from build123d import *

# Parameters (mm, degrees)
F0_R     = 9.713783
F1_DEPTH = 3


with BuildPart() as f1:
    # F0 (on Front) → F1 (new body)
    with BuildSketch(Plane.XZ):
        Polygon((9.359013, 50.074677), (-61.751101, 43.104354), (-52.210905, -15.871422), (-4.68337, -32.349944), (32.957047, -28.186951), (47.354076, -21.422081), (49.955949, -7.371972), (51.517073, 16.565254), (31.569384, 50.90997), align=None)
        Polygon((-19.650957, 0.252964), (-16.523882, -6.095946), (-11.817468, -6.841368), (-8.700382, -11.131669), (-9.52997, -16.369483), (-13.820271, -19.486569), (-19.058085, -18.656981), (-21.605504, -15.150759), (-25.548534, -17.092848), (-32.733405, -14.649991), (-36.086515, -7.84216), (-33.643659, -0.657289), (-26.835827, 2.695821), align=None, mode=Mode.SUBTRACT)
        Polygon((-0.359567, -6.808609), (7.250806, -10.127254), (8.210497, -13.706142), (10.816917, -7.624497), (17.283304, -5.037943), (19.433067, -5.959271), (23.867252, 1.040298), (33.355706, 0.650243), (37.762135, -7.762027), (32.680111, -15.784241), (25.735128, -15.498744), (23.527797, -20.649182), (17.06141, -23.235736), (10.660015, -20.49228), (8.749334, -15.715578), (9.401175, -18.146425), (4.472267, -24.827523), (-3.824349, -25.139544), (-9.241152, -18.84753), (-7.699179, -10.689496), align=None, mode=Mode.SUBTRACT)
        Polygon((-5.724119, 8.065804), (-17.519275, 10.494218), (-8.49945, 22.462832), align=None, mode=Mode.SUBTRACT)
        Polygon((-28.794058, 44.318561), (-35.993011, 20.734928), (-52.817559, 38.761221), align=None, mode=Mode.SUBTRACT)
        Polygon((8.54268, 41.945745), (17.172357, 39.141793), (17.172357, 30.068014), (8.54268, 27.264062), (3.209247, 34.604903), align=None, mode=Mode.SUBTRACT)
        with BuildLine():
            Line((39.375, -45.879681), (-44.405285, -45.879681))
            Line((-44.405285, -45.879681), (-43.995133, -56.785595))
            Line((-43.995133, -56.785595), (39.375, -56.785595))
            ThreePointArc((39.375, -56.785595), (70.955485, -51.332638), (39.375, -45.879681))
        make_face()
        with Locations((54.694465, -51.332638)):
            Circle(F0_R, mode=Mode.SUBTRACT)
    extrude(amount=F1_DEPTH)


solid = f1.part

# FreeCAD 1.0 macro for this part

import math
import FreeCAD as App
import Part
import Sketcher
Q = App.Units.Quantity


def add_polygon(sketch, points):
    """Adds a closed chain of lines whose ends are joined by coincident constraints."""
    first, n = sketch.GeometryCount, len(points)
    for a, b in zip(points, points[1:] + points[:1]):
        sketch.addGeometry(Part.LineSegment(App.Vector(*a, 0), App.Vector(*b, 0)), False)
    for i in range(n):
        sketch.addConstraint(Sketcher.Constraint("Coincident", first + i, 2, first + (i + 1) % n, 1))

doc = App.newDocument("Part")
body = doc.addObject("PartDesign::Body", "Body")
body.AllowCompound = True

# Sketch on XZ plane
sketch1 = doc.addObject("Sketcher::SketchObject", "Sketch")
body.addObject(sketch1)
sketch1.AttachmentSupport = (doc.XZ_Plane, [""])
sketch1.MapMode = "FlatFace"
add_polygon(sketch1, [(9.359013, 50.074677), (-61.751101, 43.104354), (-52.210905, -15.871422), (-4.68337, -32.349944), (32.957047, -28.186951), (47.354076, -21.422081), (49.955949, -7.371972), (51.517073, 16.565254), (31.569384, 50.90997)])  # lines 0-8
add_polygon(sketch1, [(-26.835827, 2.695821), (-19.650957, 0.252964), (-16.523882, -6.095946), (-11.817468, -6.841368), (-8.700382, -11.131669), (-9.52997, -16.369483), (-13.820271, -19.486569), (-19.058085, -18.656981), (-21.605504, -15.150759), (-25.548534, -17.092848), (-32.733405, -14.649991), (-36.086515, -7.84216), (-33.643659, -0.657289)])  # lines 9-21
add_polygon(sketch1, [(-7.699179, -10.689496), (-0.359567, -6.808609), (7.250806, -10.127254), (8.210497, -13.706142), (10.816917, -7.624497), (17.283304, -5.037943), (19.433067, -5.959271), (23.867252, 1.040298), (33.355706, 0.650243), (37.762135, -7.762027), (32.680111, -15.784241), (25.735128, -15.498744), (23.527797, -20.649182), (17.06141, -23.235736), (10.660015, -20.49228), (8.749334, -15.715578), (9.401175, -18.146425), (4.472267, -24.827523), (-3.824349, -25.139544), (-9.241152, -18.84753)])  # lines 22-41
add_polygon(sketch1, [(-8.49945, 22.462832), (-5.724119, 8.065804), (-17.519275, 10.494218)])  # lines 42-44
add_polygon(sketch1, [(-52.817559, 38.761221), (-28.794058, 44.318561), (-35.993011, 20.734928)])  # lines 45-47
add_polygon(sketch1, [(3.209247, 34.604903), (8.54268, 41.945745), (17.172357, 39.141793), (17.172357, 30.068014), (8.54268, 27.264062)])  # lines 48-52
sketch1.addGeometry(Part.LineSegment(App.Vector(39.375, -45.879681, 0), App.Vector(-44.405285, -45.879681, 0)), False)  # 53
sketch1.addGeometry(Part.LineSegment(App.Vector(-44.405285, -45.879681, 0), App.Vector(-43.995133, -56.785595, 0)), False)  # 54
sketch1.addGeometry(Part.LineSegment(App.Vector(-43.995133, -56.785595, 0), App.Vector(39.375, -56.785595, 0)), False)  # 55
sketch1.addGeometry(Part.ArcOfCircle(Part.Circle(App.Vector(54.694465, -51.332638, 0), App.Vector(0, 0, 1), 16.26102), math.radians(-160.406835), math.radians(160.406835)), False)  # 56
sketch1.addGeometry(Part.Circle(App.Vector(54.694465, -51.332638, 0), App.Vector(0, 0, 1), 9.713783), False)  # 57
sketch1.addConstraint([
    Sketcher.Constraint("Coincident", 53, 2, 54, 1),
    Sketcher.Constraint("Coincident", 54, 2, 55, 1),
    Sketcher.Constraint("Coincident", 55, 2, 56, 1),
    Sketcher.Constraint("Coincident", 56, 2, 53, 1),
    Sketcher.Constraint("Vertical", 50),
    Sketcher.Constraint("Horizontal", 53),
    Sketcher.Constraint("Horizontal", 55),
    Sketcher.Constraint("Coincident", 57, 3, 56, 3),
    Sketcher.Constraint("Radius", 56, Q("16.26102 mm")),
    Sketcher.Constraint("Diameter", 57, Q("19.427566 mm")),
    Sketcher.Constraint("DistanceX", -1, 1, 55, 2, Q("39.375 mm")),
    Sketcher.Constraint("DistanceX", -1, 1, 56, 2, Q("39.375 mm")),
    Sketcher.Constraint("DistanceY", 2, 2, 10, 2, Q("26.253998 mm")),
    Sketcher.Constraint("Distance", 9, Q("7.588801 mm")),
    Sketcher.Constraint("Distance", 19, Q("7.588802 mm")),
    Sketcher.Constraint("DistanceY", 50, 2, 50, 1, Q("9.073779 mm")),
    Sketcher.Constraint("DistanceX", 0, 2, -1, 1, Q("61.751101 mm")),
    Sketcher.Constraint("DistanceX", 3, 2, 5, 2, Q("16.998902 mm")),
    Sketcher.Constraint("DistanceY", 12, 2, 11, 2, Q("4.290301 mm")),
    Sketcher.Constraint("DistanceX", 10, 2, 12, 2, Q("7.8235 mm")),
    Sketcher.Constraint("DistanceX", 13, 2, 2, 2, Q("4.8466 mm")),
    Sketcher.Constraint("DistanceX", 14, 2, 13, 2, Q("4.290301 mm")),
    Sketcher.Constraint("DistanceY", 14, 2, 12, 2, Q("8.3549 mm")),
    Sketcher.Constraint("DistanceX", 18, 2, 16, 2, Q("11.127901 mm")),
    Sketcher.Constraint("DistanceX", 1, 2, 18, 2, Q("19.4775 mm")),
    Sketcher.Constraint("DistanceY", 16, 2, 19, 2, Q("7.308599 mm")),
    Sketcher.Constraint("DistanceX", 11, 2, 22, 2, Q("11.457901 mm")),
    Sketcher.Constraint("DistanceX", 12, 2, 25, 2, Q("19.517299 mm")),
    Sketcher.Constraint("DistanceY", 24, 2, 26, 2, Q("8.668199 mm")),
    Sketcher.Constraint("DistanceX", 26, 2, 29, 2, Q("16.072402 mm")),
    Sketcher.Constraint("DistanceY", 32, 2, 26, 2, Q("10.460801 mm")),
    Sketcher.Constraint("DistanceY", 33, 2, 35, 2, Q("0.156902 mm")),
    Sketcher.Constraint("DistanceY", 2, 2, 39, 2, Q("7.2104 mm")),
    Sketcher.Constraint("DistanceY", 41, 2, 42, 2, Q("18.7553 mm")),
    Sketcher.Constraint("DistanceY", 11, 2, 44, 2, Q("29.3042 mm")),
    Sketcher.Constraint("DistanceX", 47, 2, 45, 2, Q("24.023501 mm")),
    Sketcher.Constraint("DistanceX", 47, 2, 20, 2, Q("19.1739 mm")),
    Sketcher.Constraint("DistanceY", 21, 2, 47, 2, Q("36.0654 mm")),
    Sketcher.Constraint("DistanceX", 42, 2, 48, 2, Q("14.266799 mm")),
    Sketcher.Constraint("DistanceX", 53, 2, 15, 2, Q("25.3472 mm")),
    Sketcher.Constraint("DistanceY", 53, 2, 15, 2, Q("27.2227 mm")),
    Sketcher.Constraint("DistanceX", 54, 2, 17, 2, Q("18.446599 mm")),
    Sketcher.Constraint("DistanceY", 56, 2, 4, 2, Q("24.4576 mm")),
    Sketcher.Constraint("Distance", 0, Q("71.450918 mm")),
    Sketcher.Constraint("Distance", 3, Q("37.869929 mm")),
    Sketcher.Constraint("Distance", 6, Q("23.988078 mm")),
    Sketcher.Constraint("Distance", 11, Q("4.76508 mm")),
    Sketcher.Constraint("Distance", 16, Q("4.333929 mm")),
    Sketcher.Constraint("Distance", 17, Q("4.395361 mm")),
    Sketcher.Constraint("Distance", 22, Q("8.302481 mm")),
    Sketcher.Constraint("Distance", 23, Q("8.30248 mm")),
    Sketcher.Constraint("Distance", 26, Q("6.964512 mm")),
    Sketcher.Constraint("Distance", 28, Q("8.285889 mm")),
    Sketcher.Constraint("Distance", 32, Q("6.950849 mm")),
    Sketcher.Constraint("Distance", 33, Q("5.60351 mm")),
    Sketcher.Constraint("Distance", 34, Q("6.964512 mm")),
    Sketcher.Constraint("Distance", 35, Q("6.964511 mm")),
    Sketcher.Constraint("Distance", 38, Q("8.302482 mm")),
    Sketcher.Constraint("Distance", 39, Q("8.302481 mm")),
    Sketcher.Constraint("Distance", 40, Q("8.302481 mm")),
    Sketcher.Constraint("Distance", 41, Q("8.302482 mm")),
    Sketcher.Constraint("Distance", 42, Q("14.66209 mm")),
    Sketcher.Constraint("Distance", 48, Q("9.073779 mm")),
    Sketcher.Constraint("Distance", 49, Q("9.073779 mm")),
    Sketcher.Constraint("Distance", 51, Q("9.073779 mm")),
    Sketcher.Constraint("Distance", 52, Q("9.073778 mm")),
    Sketcher.Constraint("DistanceX", 53, 2, 53, 1, Q("83.780285 mm")),
    Sketcher.Constraint("DistanceX", 55, 1, 55, 2, Q("83.370133 mm")),
    Sketcher.Constraint("DistanceY", 56, 3, -1, 1, Q("51.332638 mm")),
    Sketcher.Constraint("DistanceX", 2, 2, -1, 1, Q("4.68337 mm")),
    Sketcher.Constraint("DistanceY", 3, 2, -1, 1, Q("28.186951 mm")),
    Sketcher.Constraint("DistanceY", 4, 2, -1, 1, Q("21.422081 mm")),
    Sketcher.Constraint("DistanceX", -1, 1, 5, 2, Q("49.955949 mm")),
    Sketcher.Constraint("DistanceY", -1, 1, 7, 2, Q("50.90997 mm")),
    Sketcher.Constraint("DistanceY", 12, 2, -1, 1, Q("11.131669 mm")),
    Sketcher.Constraint("DistanceY", 16, 2, -1, 1, Q("15.150759 mm")),
    Sketcher.Constraint("DistanceY", 18, 2, -1, 1, Q("14.649991 mm")),
    Sketcher.Constraint("DistanceX", 20, 2, -1, 1, Q("33.643659 mm")),
    Sketcher.Constraint("DistanceY", 20, 2, -1, 1, Q("0.657289 mm")),
    Sketcher.Constraint("DistanceY", -1, 1, 21, 2, Q("2.695821 mm")),
    Sketcher.Constraint("DistanceY", 22, 2, -1, 1, Q("6.808609 mm")),
    Sketcher.Constraint("DistanceY", 27, 2, -1, 1, Q("5.959271 mm")),
    Sketcher.Constraint("DistanceX", -1, 1, 31, 2, Q("32.680111 mm")),
    Sketcher.Constraint("DistanceY", 31, 2, -1, 1, Q("15.784241 mm")),
    Sketcher.Constraint("DistanceY", 33, 2, -1, 1, Q("20.649182 mm")),
    Sketcher.Constraint("DistanceX", -1, 1, 34, 2, Q("17.06141 mm")),
    Sketcher.Constraint("DistanceY", 36, 2, -1, 1, Q("15.715578 mm")),
    Sketcher.Constraint("DistanceX", 39, 2, -1, 1, Q("3.824349 mm")),
    Sketcher.Constraint("DistanceY", 40, 2, -1, 1, Q("18.84753 mm")),
    Sketcher.Constraint("DistanceX", 41, 2, -1, 1, Q("7.699179 mm")),
    Sketcher.Constraint("DistanceX", 42, 2, -1, 1, Q("5.724119 mm")),
    Sketcher.Constraint("DistanceY", -1, 1, 45, 2, Q("44.318561 mm")),
    Sketcher.Constraint("DistanceX", 46, 2, -1, 1, Q("35.993011 mm")),
    Sketcher.Constraint("DistanceY", -1, 1, 46, 2, Q("20.734928 mm")),
    Sketcher.Constraint("DistanceX", -1, 1, 51, 2, Q("8.54268 mm")),
    Sketcher.Constraint("DistanceY", -1, 1, 51, 2, Q("27.264062 mm")),
    Sketcher.Constraint("DistanceY", 2, 2, 1, 2, Q("16.478522 mm")),
    Sketcher.Constraint("DistanceX", 3, 2, 4, 2, Q("14.397029 mm")),
    Sketcher.Constraint("DistanceY", 4, 2, 5, 2, Q("14.050109 mm")),
    Sketcher.Constraint("DistanceX", 6, 2, 57, 3, Q("3.177392 mm")),
    Sketcher.Constraint("DistanceX", 7, 2, 6, 2, Q("19.947689 mm")),
    Sketcher.Constraint("DistanceX", 8, 2, 7, 2, Q("22.210371 mm")),
    Sketcher.Constraint("DistanceY", 5, 2, 8, 2, Q("57.446649 mm")),
    Sketcher.Constraint("DistanceX", 9, 2, 8, 2, Q("29.00997 mm")),
    Sketcher.Constraint("DistanceY", 9, 2, 0, 2, Q("42.85139 mm")),
    Sketcher.Constraint("DistanceY", 2, 2, 13, 2, Q("15.980461 mm")),
    Sketcher.Constraint("DistanceY", 13, 2, 23, 2, Q("6.242229 mm")),
    Sketcher.Constraint("DistanceX", 23, 2, 24, 2, Q("0.959691 mm")),
    Sketcher.Constraint("DistanceY", 13, 2, 24, 2, Q("2.663341 mm")),
    Sketcher.Constraint("DistanceY", 25, 2, 22, 2, Q("0.815888 mm")),
    Sketcher.Constraint("DistanceX", 25, 2, 27, 2, Q("8.61615 mm")),
    Sketcher.Constraint("DistanceY", 27, 2, 28, 2, Q("6.999569 mm")),
    Sketcher.Constraint("DistanceY", 25, 2, 29, 2, Q("8.27474 mm")),
    Sketcher.Constraint("DistanceX", 29, 2, 30, 2, Q("4.406429 mm")),
    Sketcher.Constraint("DistanceY", 30, 2, 29, 2, Q("8.41227 mm")),
    Sketcher.Constraint("DistanceX", 36, 2, 35, 2, Q("1.910681 mm")),
    Sketcher.Constraint("DistanceX", 36, 2, 37, 2, Q("0.651841 mm")),
    Sketcher.Constraint("DistanceY", 37, 2, 23, 2, Q("8.019171 mm")),
    Sketcher.Constraint("DistanceX", 9, 2, 43, 2, Q("2.131682 mm")),
    Sketcher.Constraint("DistanceY", 43, 2, 46, 2, Q("10.24071 mm")),
    Sketcher.Constraint("DistanceY", 48, 2, 8, 2, Q("8.128932 mm")),
])
pad1 = doc.addObject("PartDesign::Pad", "Pad")
body.addObject(pad1)
pad1.Profile = sketch1
pad1.Length = 3

doc.recompute()
